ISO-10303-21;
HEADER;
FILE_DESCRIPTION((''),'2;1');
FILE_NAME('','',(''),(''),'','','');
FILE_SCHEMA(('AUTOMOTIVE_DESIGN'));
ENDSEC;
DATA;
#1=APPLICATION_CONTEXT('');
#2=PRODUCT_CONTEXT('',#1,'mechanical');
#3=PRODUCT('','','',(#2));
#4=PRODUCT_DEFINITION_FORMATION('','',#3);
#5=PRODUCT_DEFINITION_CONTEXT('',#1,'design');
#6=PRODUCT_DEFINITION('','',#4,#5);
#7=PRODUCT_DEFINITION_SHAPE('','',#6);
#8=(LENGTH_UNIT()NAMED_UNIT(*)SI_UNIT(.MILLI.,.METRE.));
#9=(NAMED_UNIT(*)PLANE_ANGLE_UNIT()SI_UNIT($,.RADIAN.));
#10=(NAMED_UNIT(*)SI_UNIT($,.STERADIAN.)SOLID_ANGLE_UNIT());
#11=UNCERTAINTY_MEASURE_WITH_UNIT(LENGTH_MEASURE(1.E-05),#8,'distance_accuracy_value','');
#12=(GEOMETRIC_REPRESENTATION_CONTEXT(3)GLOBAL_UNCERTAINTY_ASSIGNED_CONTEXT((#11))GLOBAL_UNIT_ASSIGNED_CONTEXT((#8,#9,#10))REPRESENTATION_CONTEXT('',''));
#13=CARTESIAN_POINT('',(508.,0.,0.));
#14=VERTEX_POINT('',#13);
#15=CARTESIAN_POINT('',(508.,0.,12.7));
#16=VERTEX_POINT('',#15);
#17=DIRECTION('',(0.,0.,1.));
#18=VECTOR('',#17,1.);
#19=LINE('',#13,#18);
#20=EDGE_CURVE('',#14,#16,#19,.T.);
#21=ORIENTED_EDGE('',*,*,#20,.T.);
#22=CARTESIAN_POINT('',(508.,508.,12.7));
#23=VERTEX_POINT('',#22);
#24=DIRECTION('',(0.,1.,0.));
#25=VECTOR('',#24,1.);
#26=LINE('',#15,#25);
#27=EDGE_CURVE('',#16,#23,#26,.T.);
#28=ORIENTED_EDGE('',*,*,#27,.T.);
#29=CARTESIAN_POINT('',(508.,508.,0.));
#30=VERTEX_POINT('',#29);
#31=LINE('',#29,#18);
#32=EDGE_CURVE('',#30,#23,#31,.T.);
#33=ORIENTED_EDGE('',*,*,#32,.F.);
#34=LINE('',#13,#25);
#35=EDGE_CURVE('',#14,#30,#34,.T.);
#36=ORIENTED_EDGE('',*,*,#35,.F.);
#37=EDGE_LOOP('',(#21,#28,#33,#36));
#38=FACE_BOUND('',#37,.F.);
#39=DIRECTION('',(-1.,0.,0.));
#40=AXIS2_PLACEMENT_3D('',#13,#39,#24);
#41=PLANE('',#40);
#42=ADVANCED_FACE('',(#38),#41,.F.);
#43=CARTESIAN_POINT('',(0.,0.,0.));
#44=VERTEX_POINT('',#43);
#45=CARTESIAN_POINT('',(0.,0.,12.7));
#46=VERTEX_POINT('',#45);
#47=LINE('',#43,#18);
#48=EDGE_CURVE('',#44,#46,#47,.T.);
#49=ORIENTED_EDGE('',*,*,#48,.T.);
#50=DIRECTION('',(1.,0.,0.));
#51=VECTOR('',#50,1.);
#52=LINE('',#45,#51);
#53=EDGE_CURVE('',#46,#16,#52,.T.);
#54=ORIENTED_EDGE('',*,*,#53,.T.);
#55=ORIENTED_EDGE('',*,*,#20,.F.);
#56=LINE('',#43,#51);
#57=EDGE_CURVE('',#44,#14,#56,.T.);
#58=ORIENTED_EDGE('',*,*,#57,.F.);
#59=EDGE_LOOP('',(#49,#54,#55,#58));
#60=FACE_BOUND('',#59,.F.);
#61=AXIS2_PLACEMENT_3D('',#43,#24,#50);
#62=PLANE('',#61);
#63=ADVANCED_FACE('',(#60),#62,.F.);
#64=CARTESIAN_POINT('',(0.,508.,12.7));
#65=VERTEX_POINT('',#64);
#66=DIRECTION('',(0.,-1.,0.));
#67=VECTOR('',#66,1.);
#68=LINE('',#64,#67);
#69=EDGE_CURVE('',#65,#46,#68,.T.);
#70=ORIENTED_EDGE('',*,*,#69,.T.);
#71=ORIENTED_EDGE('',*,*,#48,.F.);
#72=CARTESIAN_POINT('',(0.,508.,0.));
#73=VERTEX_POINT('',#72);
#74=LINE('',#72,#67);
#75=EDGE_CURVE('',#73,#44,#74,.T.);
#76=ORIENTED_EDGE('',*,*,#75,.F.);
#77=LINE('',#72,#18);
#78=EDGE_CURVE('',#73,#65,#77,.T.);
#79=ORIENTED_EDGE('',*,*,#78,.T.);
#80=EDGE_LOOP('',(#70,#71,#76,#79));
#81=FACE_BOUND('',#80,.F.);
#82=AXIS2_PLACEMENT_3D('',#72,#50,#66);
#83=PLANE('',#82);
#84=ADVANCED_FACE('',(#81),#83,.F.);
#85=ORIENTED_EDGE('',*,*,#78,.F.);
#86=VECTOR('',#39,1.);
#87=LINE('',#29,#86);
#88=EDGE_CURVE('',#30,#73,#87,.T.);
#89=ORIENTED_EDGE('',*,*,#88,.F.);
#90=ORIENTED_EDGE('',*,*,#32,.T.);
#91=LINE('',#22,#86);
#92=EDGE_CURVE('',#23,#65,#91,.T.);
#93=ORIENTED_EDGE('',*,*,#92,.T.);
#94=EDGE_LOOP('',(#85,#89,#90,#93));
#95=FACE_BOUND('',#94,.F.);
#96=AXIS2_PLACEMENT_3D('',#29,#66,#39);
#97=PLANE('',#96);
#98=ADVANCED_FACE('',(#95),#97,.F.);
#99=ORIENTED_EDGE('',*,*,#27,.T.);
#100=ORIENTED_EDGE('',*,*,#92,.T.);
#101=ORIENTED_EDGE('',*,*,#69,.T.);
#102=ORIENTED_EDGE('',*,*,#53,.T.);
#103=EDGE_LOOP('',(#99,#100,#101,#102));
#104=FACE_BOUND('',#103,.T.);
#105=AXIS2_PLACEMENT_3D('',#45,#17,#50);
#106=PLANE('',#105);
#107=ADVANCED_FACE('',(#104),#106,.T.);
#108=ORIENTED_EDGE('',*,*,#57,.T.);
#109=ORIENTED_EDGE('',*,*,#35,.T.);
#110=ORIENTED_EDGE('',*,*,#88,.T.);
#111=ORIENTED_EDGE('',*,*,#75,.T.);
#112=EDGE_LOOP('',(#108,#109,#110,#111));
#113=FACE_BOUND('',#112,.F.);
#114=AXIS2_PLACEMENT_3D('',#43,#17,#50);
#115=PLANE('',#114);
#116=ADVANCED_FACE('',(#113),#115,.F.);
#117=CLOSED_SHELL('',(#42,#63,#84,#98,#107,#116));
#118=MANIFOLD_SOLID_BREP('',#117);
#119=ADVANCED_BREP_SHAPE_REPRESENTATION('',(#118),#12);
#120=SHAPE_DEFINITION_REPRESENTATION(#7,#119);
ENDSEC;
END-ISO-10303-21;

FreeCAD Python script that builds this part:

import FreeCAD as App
import Part
import Sketcher
Q = App.Units.Quantity


def add_polygon(sketch, points):
    """Adds a closed chain of lines whose ends are joined by coincident constraints."""
    first, n = sketch.GeometryCount, len(points)
    for a, b in zip(points, points[1:] + points[:1]):
        sketch.addGeometry(Part.LineSegment(App.Vector(*a, 0), App.Vector(*b, 0)), False)
    for i in range(n):
        sketch.addConstraint(Sketcher.Constraint("Coincident", first + i, 2, first + (i + 1) % n, 1))

doc = App.newDocument("Part")
body = doc.addObject("PartDesign::Body", "Body")

sketch1 = body.newObject("Sketcher::SketchObject", "Sketch")
sketch1.AttachmentSupport = (doc.getObject("XY_Plane"), [""])
sketch1.MapMode = "FlatFace"
add_polygon(sketch1, [(0, 508), (0, 0), (508, 0), (508, 508)])
sketch1.addConstraint([
    Sketcher.Constraint("Vertical", 0),
    Sketcher.Constraint("Horizontal", 1),
    Sketcher.Constraint("Vertical", 2),
    Sketcher.Constraint("Horizontal", 3),
    Sketcher.Constraint("Coincident", 0, 2, -1, 1),
    Sketcher.Constraint("Equal", 3, 0),
    Sketcher.Constraint("DistanceX", 1, 1, 1, 2, Q("20 in")),
])
pad1 = body.newObject("PartDesign::Pad", "Pad")
pad1.Profile = sketch1
pad1.Length = Q("0.5 in")

doc.recompute()
